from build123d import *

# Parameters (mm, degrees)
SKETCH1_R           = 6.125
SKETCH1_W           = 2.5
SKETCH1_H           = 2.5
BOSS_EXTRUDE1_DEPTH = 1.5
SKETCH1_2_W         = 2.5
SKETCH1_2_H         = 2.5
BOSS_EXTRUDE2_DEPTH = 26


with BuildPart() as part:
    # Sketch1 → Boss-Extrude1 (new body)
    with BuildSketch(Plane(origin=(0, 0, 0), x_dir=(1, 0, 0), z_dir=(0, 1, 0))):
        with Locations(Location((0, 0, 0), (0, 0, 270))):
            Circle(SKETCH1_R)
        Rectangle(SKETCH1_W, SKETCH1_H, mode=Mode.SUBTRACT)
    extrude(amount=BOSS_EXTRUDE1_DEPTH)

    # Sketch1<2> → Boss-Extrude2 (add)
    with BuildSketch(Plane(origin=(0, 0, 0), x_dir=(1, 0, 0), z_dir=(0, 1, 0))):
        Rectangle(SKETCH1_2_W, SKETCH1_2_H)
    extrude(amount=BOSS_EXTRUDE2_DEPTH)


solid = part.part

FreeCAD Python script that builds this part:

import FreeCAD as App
import Part
import Sketcher
from FreeCAD import Vector
Q = App.Units.Quantity

doc = App.newDocument("Part")
body = doc.addObject("PartDesign::Body", "Body")

# Sketch on XZ plane
sketch1 = body.newObject("Sketcher::SketchObject", "Sketch")
sketch1.AttachmentSupport = (doc.getObject("XZ_Plane"), [""])
sketch1.MapMode = "FlatFace"
sketch1.addGeometry([
    Part.Circle(Vector(0, 0, 0), Vector(0, 0, 1), 6.1),  # 0
    Part.LineSegment(Vector(1.2, 1.2, 0), Vector(-1.2, 1.2, 0)),  # 1
    Part.LineSegment(Vector(-1.2, 1.2, 0), Vector(-1.2, -1.2, 0)),  # 2
    Part.LineSegment(Vector(-1.2, -1.2, 0), Vector(1.2, -1.2, 0)),  # 3
    Part.LineSegment(Vector(1.2, -1.2, 0), Vector(1.2, 1.2, 0)),  # 4
], False)
sketch1.addConstraint([
    Sketcher.Constraint("Coincident", 1, 2, 2, 1),
    Sketcher.Constraint("Coincident", 2, 2, 3, 1),
    Sketcher.Constraint("Coincident", 3, 2, 4, 1),
    Sketcher.Constraint("Coincident", 4, 2, 1, 1),
    Sketcher.Constraint("Horizontal", 1),
    Sketcher.Constraint("Vertical", 2),
    Sketcher.Constraint("Horizontal", 3),
    Sketcher.Constraint("Vertical", 4),
    Sketcher.Constraint("Coincident", 0, 3, -1, 1),
    Sketcher.Constraint("Symmetric", 1, 2, 3, 2, -1, 1),
    Sketcher.Constraint("Equal", 3, 2),
    Sketcher.Constraint("Diameter", 0, Q("12.25 mm")),
    Sketcher.Constraint("DistanceX", 1, 2, 1, 1, Q("2.5 mm")),
])
pad1 = body.newObject("PartDesign::Pad", "Pad")
pad1.Profile = sketch1
pad1.Length = 1.5
pad1.Reversed = True

# Sketch on XZ plane
sketch2 = body.newObject("Sketcher::SketchObject", "Sketch001")
sketch2.AttachmentSupport = (doc.getObject("XZ_Plane"), [""])
sketch2.MapMode = "FlatFace"
sketch2.addGeometry([
    Part.LineSegment(Vector(-1.2, -1.2, 0), Vector(-1.2, 1.2, 0)),
    Part.LineSegment(Vector(-1.2, 1.2, 0), Vector(1.2, 1.2, 0)),
    Part.LineSegment(Vector(1.2, 1.2, 0), Vector(1.2, -1.2, 0)),
    Part.LineSegment(Vector(1.2, -1.2, 0), Vector(-1.2, -1.2, 0)),
], False)
sketch2.addConstraint([
    Sketcher.Constraint("Coincident", 0, 2, 1, 1),
    Sketcher.Constraint("Coincident", 1, 2, 2, 1),
    Sketcher.Constraint("Coincident", 2, 2, 3, 1),
    Sketcher.Constraint("Coincident", 3, 2, 0, 1),
    Sketcher.Constraint("Vertical", 0),
    Sketcher.Constraint("Horizontal", 1),
    Sketcher.Constraint("Vertical", 2),
    Sketcher.Constraint("Horizontal", 3),
    Sketcher.Constraint("Symmetric", 0, 2, 2, 2, -1, 1),
    Sketcher.Constraint("Equal", 3, 0),
    Sketcher.Constraint("DistanceX", 1, 1, 1, 2, Q("2.5 mm")),
])
pad2 = body.newObject("PartDesign::Pad", "Pad001")
pad2.Profile = sketch2
pad2.Length = 26
pad2.Reversed = True

doc.recompute()
